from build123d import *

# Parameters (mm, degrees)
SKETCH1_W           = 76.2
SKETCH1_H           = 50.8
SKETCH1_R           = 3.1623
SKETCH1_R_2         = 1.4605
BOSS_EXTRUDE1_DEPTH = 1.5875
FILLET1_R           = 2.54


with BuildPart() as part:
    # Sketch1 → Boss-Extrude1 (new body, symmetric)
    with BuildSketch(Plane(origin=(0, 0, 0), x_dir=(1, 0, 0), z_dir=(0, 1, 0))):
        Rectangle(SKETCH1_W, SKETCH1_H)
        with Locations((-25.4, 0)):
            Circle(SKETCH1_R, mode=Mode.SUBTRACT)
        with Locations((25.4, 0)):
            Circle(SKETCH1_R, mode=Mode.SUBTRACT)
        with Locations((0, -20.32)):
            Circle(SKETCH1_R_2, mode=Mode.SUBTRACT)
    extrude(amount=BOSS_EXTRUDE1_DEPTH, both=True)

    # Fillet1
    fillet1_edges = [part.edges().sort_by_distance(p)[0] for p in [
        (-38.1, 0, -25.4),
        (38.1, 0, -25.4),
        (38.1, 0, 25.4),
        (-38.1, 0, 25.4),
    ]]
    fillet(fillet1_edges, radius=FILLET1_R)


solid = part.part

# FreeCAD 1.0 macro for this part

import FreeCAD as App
import Part
import Sketcher
Q = App.Units.Quantity


def edges_at(feature, points):
    """Names of the edges that pass closest to the given points."""
    edges = feature.Shape.Edges
    near = lambda p: min(range(len(edges)), key=lambda i: edges[i].distToShape(Part.Vertex(*p))[0])
    return sorted({f"Edge{near(p) + 1}" for p in points})


def add_polygon(sketch, points):
    """Adds a closed chain of lines whose ends are joined by coincident constraints."""
    first, n = sketch.GeometryCount, len(points)
    for a, b in zip(points, points[1:] + points[:1]):
        sketch.addGeometry(Part.LineSegment(App.Vector(*a, 0), App.Vector(*b, 0)), False)
    for i in range(n):
        sketch.addConstraint(Sketcher.Constraint("Coincident", first + i, 2, first + (i + 1) % n, 1))

doc = App.newDocument("Part")
body = doc.addObject("PartDesign::Body", "Body")

sketch1 = body.newObject("Sketcher::SketchObject", "Sketch")
sketch1.AttachmentSupport = (doc.getObject("XZ_Plane"), [""])
sketch1.MapMode = "FlatFace"
add_polygon(sketch1, [(-38.1, -25.4), (-38.1, 25.4), (38.1, 25.4), (38.1, -25.4)])
sketch1.addGeometry(Part.Circle(App.Vector(0, 20.3, 0), App.Vector(0, 0, 1), 1.5), False)
sketch1.addGeometry(Part.Circle(App.Vector(-25.4, 0, 0), App.Vector(0, 0, 1), 3.2), False)
sketch1.addGeometry(Part.Circle(App.Vector(25.4, 0, 0), App.Vector(0, 0, 1), 3.2), False)
sketch1.addConstraint(Sketcher.Constraint("Vertical", 0))
sketch1.addConstraint(Sketcher.Constraint("Horizontal", 1))
sketch1.addConstraint(Sketcher.Constraint("Vertical", 2))
sketch1.addConstraint(Sketcher.Constraint("Horizontal", 3))
sketch1.addConstraint(Sketcher.Constraint("Equal", 5, 6))
sketch1.addConstraint(Sketcher.Constraint("Symmetric", 5, 3, 6, 3, -1, 1))
sketch1.addConstraint(Sketcher.Constraint("Symmetric", 0, 2, 2, 2, -1, 1))
sketch1.addConstraint(Sketcher.Constraint("PointOnObject", 4, 3, -2))
sketch1.addConstraint(Sketcher.Constraint("PointOnObject", 5, 3, -1))
sketch1.addConstraint(Sketcher.Constraint("DistanceX", 1, 1, 1, 2, Q("3 in")))
sketch1.addConstraint(Sketcher.Constraint("DistanceY", 0, 1, 0, 2, Q("2 in")))
sketch1.addConstraint(Sketcher.Constraint("Diameter", 4, Q("0.115 in")))
sketch1.addConstraint(Sketcher.Constraint("Diameter", 5, Q("0.249 in")))
sketch1.addConstraint(Sketcher.Constraint("DistanceX", 5, 3, -1, 1, Q("1 in")))
sketch1.addConstraint(Sketcher.Constraint("DistanceY", -1, 1, 4, 3, Q("0.8 in")))
pad1 = body.newObject("PartDesign::Pad", "Pad")
pad1.Profile = sketch1
pad1.Length = Q("0.125 in")
pad1.Midplane = True
doc.recompute()

fillet = body.newObject("PartDesign::Fillet", "Fillet")
fillet.Base = (pad1, edges_at(pad1, [
    (-38.1, 0, -25.4),
    (38.1, 0, -25.4),
    (38.1, 0, 25.4),
    (-38.1, 0, 25.4),
]))
fillet.Radius = Q("0.1 in")

doc.recompute()
